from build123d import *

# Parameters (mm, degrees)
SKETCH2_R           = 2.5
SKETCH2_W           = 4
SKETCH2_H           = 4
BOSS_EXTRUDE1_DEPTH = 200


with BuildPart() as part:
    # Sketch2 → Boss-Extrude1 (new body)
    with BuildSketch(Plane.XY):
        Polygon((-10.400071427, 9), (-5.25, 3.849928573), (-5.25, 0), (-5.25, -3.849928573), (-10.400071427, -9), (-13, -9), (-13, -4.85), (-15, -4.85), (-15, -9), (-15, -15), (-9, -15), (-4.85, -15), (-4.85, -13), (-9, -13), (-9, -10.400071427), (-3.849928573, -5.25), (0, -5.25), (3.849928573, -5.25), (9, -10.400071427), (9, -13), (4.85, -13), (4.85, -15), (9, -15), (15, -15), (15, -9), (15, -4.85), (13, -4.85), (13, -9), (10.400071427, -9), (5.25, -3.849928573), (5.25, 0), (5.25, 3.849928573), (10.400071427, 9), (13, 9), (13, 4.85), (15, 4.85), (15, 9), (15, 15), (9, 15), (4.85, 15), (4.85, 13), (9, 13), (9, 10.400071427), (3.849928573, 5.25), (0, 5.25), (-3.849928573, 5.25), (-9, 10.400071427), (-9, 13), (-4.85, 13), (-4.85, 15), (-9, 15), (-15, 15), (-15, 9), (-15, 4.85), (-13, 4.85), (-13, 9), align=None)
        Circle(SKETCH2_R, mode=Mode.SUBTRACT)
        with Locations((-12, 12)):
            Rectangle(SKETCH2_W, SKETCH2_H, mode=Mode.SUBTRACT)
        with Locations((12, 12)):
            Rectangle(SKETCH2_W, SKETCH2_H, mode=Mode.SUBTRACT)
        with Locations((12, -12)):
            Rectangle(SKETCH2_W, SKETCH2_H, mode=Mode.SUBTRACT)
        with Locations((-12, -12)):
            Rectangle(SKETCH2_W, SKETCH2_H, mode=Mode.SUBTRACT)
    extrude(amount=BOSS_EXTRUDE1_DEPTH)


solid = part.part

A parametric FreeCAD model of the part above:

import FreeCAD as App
import Part
import Sketcher
Q = App.Units.Quantity

doc = App.newDocument("Part")
body = doc.addObject("PartDesign::Body", "Body")

# Sketch on XY plane
sketch1 = body.newObject("Sketcher::SketchObject", "Sketch")
sketch1.AttachmentSupport = (doc.getObject("XY_Plane"), [""])
sketch1.MapMode = "FlatFace"
sketch1.addGeometry(Part.LineSegment(App.Vector(-10.400071, 9, 0), App.Vector(-5.25, 3.849929, 0)), False)
sketch1.addGeometry(Part.LineSegment(App.Vector(-5.25, 3.849929, 0), App.Vector(-5.25, -3.849929, 0)), False)
sketch1.addGeometry(Part.LineSegment(App.Vector(-5.25, -3.849929, 0), App.Vector(-10.400071, -9, 0)), False)
sketch1.addGeometry(Part.LineSegment(App.Vector(-10.400071, -9, 0), App.Vector(-13, -9, 0)), False)
sketch1.addGeometry(Part.LineSegment(App.Vector(-13, -9, 0), App.Vector(-13, -4.85, 0)), False)
sketch1.addGeometry(Part.LineSegment(App.Vector(-13, -4.85, 0), App.Vector(-15, -4.85, 0)), False)
sketch1.addGeometry(Part.LineSegment(App.Vector(-15, -4.85, 0), App.Vector(-15, -15, 0)), False)
sketch1.addGeometry(Part.LineSegment(App.Vector(-15, -15, 0), App.Vector(-4.85, -15, 0)), False)
sketch1.addGeometry(Part.LineSegment(App.Vector(-4.85, -15, 0), App.Vector(-4.85, -13, 0)), False)
sketch1.addGeometry(Part.LineSegment(App.Vector(-4.85, -13, 0), App.Vector(-9, -13, 0)), False)
sketch1.addGeometry(Part.LineSegment(App.Vector(-9, -13, 0), App.Vector(-9, -10.400071, 0)), False)
sketch1.addGeometry(Part.LineSegment(App.Vector(-9, -10.400071, 0), App.Vector(-3.849929, -5.25, 0)), False)
sketch1.addGeometry(Part.LineSegment(App.Vector(-3.849929, -5.25, 0), App.Vector(3.849929, -5.25, 0)), False)
sketch1.addGeometry(Part.LineSegment(App.Vector(3.849929, -5.25, 0), App.Vector(9, -10.400071, 0)), False)
sketch1.addGeometry(Part.LineSegment(App.Vector(9, -10.400071, 0), App.Vector(9, -13, 0)), False)
sketch1.addGeometry(Part.LineSegment(App.Vector(9, -13, 0), App.Vector(4.85, -13, 0)), False)
sketch1.addGeometry(Part.LineSegment(App.Vector(4.85, -13, 0), App.Vector(4.85, -15, 0)), False)
sketch1.addGeometry(Part.LineSegment(App.Vector(4.85, -15, 0), App.Vector(15, -15, 0)), False)
sketch1.addGeometry(Part.LineSegment(App.Vector(15, -15, 0), App.Vector(15, -4.85, 0)), False)
sketch1.addGeometry(Part.LineSegment(App.Vector(15, -4.85, 0), App.Vector(13, -4.85, 0)), False)
sketch1.addGeometry(Part.LineSegment(App.Vector(13, -4.85, 0), App.Vector(13, -9, 0)), False)
sketch1.addGeometry(Part.LineSegment(App.Vector(13, -9, 0), App.Vector(10.400071, -9, 0)), False)
sketch1.addGeometry(Part.LineSegment(App.Vector(10.400071, -9, 0), App.Vector(5.25, -3.849929, 0)), False)
sketch1.addGeometry(Part.LineSegment(App.Vector(5.25, -3.849929, 0), App.Vector(5.25, 3.849929, 0)), False)
sketch1.addGeometry(Part.LineSegment(App.Vector(5.25, 3.849929, 0), App.Vector(10.400071, 9, 0)), False)
sketch1.addGeometry(Part.LineSegment(App.Vector(10.400071, 9, 0), App.Vector(13, 9, 0)), False)
sketch1.addGeometry(Part.LineSegment(App.Vector(13, 9, 0), App.Vector(13, 4.85, 0)), False)
sketch1.addGeometry(Part.LineSegment(App.Vector(13, 4.85, 0), App.Vector(15, 4.85, 0)), False)
sketch1.addGeometry(Part.LineSegment(App.Vector(15, 4.85, 0), App.Vector(15, 15, 0)), False)
sketch1.addGeometry(Part.LineSegment(App.Vector(15, 15, 0), App.Vector(4.85, 15, 0)), False)
sketch1.addGeometry(Part.LineSegment(App.Vector(4.85, 15, 0), App.Vector(4.85, 13, 0)), False)
sketch1.addGeometry(Part.LineSegment(App.Vector(4.85, 13, 0), App.Vector(9, 13, 0)), False)
sketch1.addGeometry(Part.LineSegment(App.Vector(9, 13, 0), App.Vector(9, 10.400071, 0)), False)
sketch1.addGeometry(Part.LineSegment(App.Vector(9, 10.400071, 0), App.Vector(3.849929, 5.25, 0)), False)
sketch1.addGeometry(Part.LineSegment(App.Vector(3.849929, 5.25, 0), App.Vector(-3.849929, 5.25, 0)), False)
sketch1.addGeometry(Part.LineSegment(App.Vector(-3.849929, 5.25, 0), App.Vector(-9, 10.400071, 0)), False)
sketch1.addGeometry(Part.LineSegment(App.Vector(-9, 10.400071, 0), App.Vector(-9, 13, 0)), False)
sketch1.addGeometry(Part.LineSegment(App.Vector(-9, 13, 0), App.Vector(-4.85, 13, 0)), False)
sketch1.addGeometry(Part.LineSegment(App.Vector(-4.85, 13, 0), App.Vector(-4.85, 15, 0)), False)
sketch1.addGeometry(Part.LineSegment(App.Vector(-4.85, 15, 0), App.Vector(-15, 15, 0)), False)
sketch1.addGeometry(Part.LineSegment(App.Vector(-15, 15, 0), App.Vector(-15, 4.85, 0)), False)
sketch1.addGeometry(Part.LineSegment(App.Vector(-15, 4.85, 0), App.Vector(-13, 4.85, 0)), False)
sketch1.addGeometry(Part.LineSegment(App.Vector(-13, 4.85, 0), App.Vector(-13, 9, 0)), False)
sketch1.addGeometry(Part.LineSegment(App.Vector(-13, 9, 0), App.Vector(-10.400071, 9, 0)), False)
sketch1.addGeometry(Part.LineSegment(App.Vector(-10, -14, 0), App.Vector(-14, -14, 0)), False)
sketch1.addGeometry(Part.LineSegment(App.Vector(-14, -14, 0), App.Vector(-14, -10, 0)), False)
sketch1.addGeometry(Part.LineSegment(App.Vector(-14, -10, 0), App.Vector(-10, -10, 0)), False)
sketch1.addGeometry(Part.LineSegment(App.Vector(-10, -10, 0), App.Vector(-10, -14, 0)), False)
sketch1.addGeometry(Part.LineSegment(App.Vector(14, -14, 0), App.Vector(10, -14, 0)), False)
sketch1.addGeometry(Part.LineSegment(App.Vector(10, -14, 0), App.Vector(10, -10, 0)), False)
sketch1.addGeometry(Part.LineSegment(App.Vector(10, -10, 0), App.Vector(14, -10, 0)), False)
sketch1.addGeometry(Part.LineSegment(App.Vector(14, -10, 0), App.Vector(14, -14, 0)), False)
sketch1.addGeometry(Part.LineSegment(App.Vector(-10, 10, 0), App.Vector(-14, 10, 0)), False)
sketch1.addGeometry(Part.LineSegment(App.Vector(-14, 10, 0), App.Vector(-14, 14, 0)), False)
sketch1.addGeometry(Part.LineSegment(App.Vector(-14, 14, 0), App.Vector(-10, 14, 0)), False)
sketch1.addGeometry(Part.LineSegment(App.Vector(-10, 14, 0), App.Vector(-10, 10, 0)), False)
sketch1.addGeometry(Part.Circle(App.Vector(0, 0, 0), App.Vector(0, 0, 1), 2.5), False)
sketch1.addGeometry(Part.LineSegment(App.Vector(14, 10, 0), App.Vector(10, 10, 0)), False)
sketch1.addGeometry(Part.LineSegment(App.Vector(10, 10, 0), App.Vector(10, 14, 0)), False)
sketch1.addGeometry(Part.LineSegment(App.Vector(10, 14, 0), App.Vector(14, 14, 0)), False)
sketch1.addGeometry(Part.LineSegment(App.Vector(14, 14, 0), App.Vector(14, 10, 0)), False)
sketch1.addConstraint(Sketcher.Constraint("Coincident", 0, 2, 1, 1))
sketch1.addConstraint(Sketcher.Constraint("Coincident", 1, 2, 2, 1))
sketch1.addConstraint(Sketcher.Constraint("Coincident", 2, 2, 3, 1))
sketch1.addConstraint(Sketcher.Constraint("Coincident", 3, 2, 4, 1))
sketch1.addConstraint(Sketcher.Constraint("Coincident", 4, 2, 5, 1))
sketch1.addConstraint(Sketcher.Constraint("Coincident", 5, 2, 6, 1))
sketch1.addConstraint(Sketcher.Constraint("Coincident", 6, 2, 7, 1))
sketch1.addConstraint(Sketcher.Constraint("Coincident", 7, 2, 8, 1))
sketch1.addConstraint(Sketcher.Constraint("Coincident", 8, 2, 9, 1))
sketch1.addConstraint(Sketcher.Constraint("Coincident", 9, 2, 10, 1))
sketch1.addConstraint(Sketcher.Constraint("Coincident", 10, 2, 11, 1))
sketch1.addConstraint(Sketcher.Constraint("Coincident", 11, 2, 12, 1))
sketch1.addConstraint(Sketcher.Constraint("Coincident", 12, 2, 13, 1))
sketch1.addConstraint(Sketcher.Constraint("Coincident", 13, 2, 14, 1))
sketch1.addConstraint(Sketcher.Constraint("Coincident", 14, 2, 15, 1))
sketch1.addConstraint(Sketcher.Constraint("Coincident", 15, 2, 16, 1))
sketch1.addConstraint(Sketcher.Constraint("Coincident", 16, 2, 17, 1))
sketch1.addConstraint(Sketcher.Constraint("Coincident", 17, 2, 18, 1))
sketch1.addConstraint(Sketcher.Constraint("Coincident", 18, 2, 19, 1))
sketch1.addConstraint(Sketcher.Constraint("Coincident", 19, 2, 20, 1))
sketch1.addConstraint(Sketcher.Constraint("Coincident", 20, 2, 21, 1))
sketch1.addConstraint(Sketcher.Constraint("Coincident", 21, 2, 22, 1))
sketch1.addConstraint(Sketcher.Constraint("Coincident", 22, 2, 23, 1))
sketch1.addConstraint(Sketcher.Constraint("Coincident", 23, 2, 24, 1))
sketch1.addConstraint(Sketcher.Constraint("Coincident", 24, 2, 25, 1))
sketch1.addConstraint(Sketcher.Constraint("Coincident", 25, 2, 26, 1))
sketch1.addConstraint(Sketcher.Constraint("Coincident", 26, 2, 27, 1))
sketch1.addConstraint(Sketcher.Constraint("Coincident", 27, 2, 28, 1))
sketch1.addConstraint(Sketcher.Constraint("Coincident", 28, 2, 29, 1))
sketch1.addConstraint(Sketcher.Constraint("Coincident", 29, 2, 30, 1))
sketch1.addConstraint(Sketcher.Constraint("Coincident", 30, 2, 31, 1))
sketch1.addConstraint(Sketcher.Constraint("Coincident", 31, 2, 32, 1))
sketch1.addConstraint(Sketcher.Constraint("Coincident", 32, 2, 33, 1))
sketch1.addConstraint(Sketcher.Constraint("Coincident", 33, 2, 34, 1))
sketch1.addConstraint(Sketcher.Constraint("Coincident", 34, 2, 35, 1))
sketch1.addConstraint(Sketcher.Constraint("Coincident", 35, 2, 36, 1))
sketch1.addConstraint(Sketcher.Constraint("Coincident", 36, 2, 37, 1))
sketch1.addConstraint(Sketcher.Constraint("Coincident", 37, 2, 38, 1))
sketch1.addConstraint(Sketcher.Constraint("Coincident", 38, 2, 39, 1))
sketch1.addConstraint(Sketcher.Constraint("Coincident", 39, 2, 40, 1))
sketch1.addConstraint(Sketcher.Constraint("Coincident", 40, 2, 41, 1))
sketch1.addConstraint(Sketcher.Constraint("Coincident", 41, 2, 42, 1))
sketch1.addConstraint(Sketcher.Constraint("Coincident", 42, 2, 43, 1))
sketch1.addConstraint(Sketcher.Constraint("Coincident", 43, 2, 0, 1))
sketch1.addConstraint(Sketcher.Constraint("Coincident", 44, 2, 45, 1))
sketch1.addConstraint(Sketcher.Constraint("Coincident", 45, 2, 46, 1))
sketch1.addConstraint(Sketcher.Constraint("Coincident", 46, 2, 47, 1))
sketch1.addConstraint(Sketcher.Constraint("Coincident", 47, 2, 44, 1))
sketch1.addConstraint(Sketcher.Constraint("Coincident", 48, 2, 49, 1))
sketch1.addConstraint(Sketcher.Constraint("Coincident", 49, 2, 50, 1))
sketch1.addConstraint(Sketcher.Constraint("Coincident", 50, 2, 51, 1))
sketch1.addConstraint(Sketcher.Constraint("Coincident", 51, 2, 48, 1))
sketch1.addConstraint(Sketcher.Constraint("Coincident", 52, 2, 53, 1))
sketch1.addConstraint(Sketcher.Constraint("Coincident", 53, 2, 54, 1))
sketch1.addConstraint(Sketcher.Constraint("Coincident", 54, 2, 55, 1))
sketch1.addConstraint(Sketcher.Constraint("Coincident", 55, 2, 52, 1))
sketch1.addConstraint(Sketcher.Constraint("Coincident", 57, 2, 58, 1))
sketch1.addConstraint(Sketcher.Constraint("Coincident", 58, 2, 59, 1))
sketch1.addConstraint(Sketcher.Constraint("Coincident", 59, 2, 60, 1))
sketch1.addConstraint(Sketcher.Constraint("Coincident", 60, 2, 57, 1))
sketch1.addConstraint(Sketcher.Constraint("Vertical", 1))
sketch1.addConstraint(Sketcher.Constraint("Horizontal", 3))
sketch1.addConstraint(Sketcher.Constraint("Vertical", 4))
sketch1.addConstraint(Sketcher.Constraint("Horizontal", 5))
sketch1.addConstraint(Sketcher.Constraint("Vertical", 6))
sketch1.addConstraint(Sketcher.Constraint("Horizontal", 7))
sketch1.addConstraint(Sketcher.Constraint("Vertical", 8))
sketch1.addConstraint(Sketcher.Constraint("Horizontal", 9))
sketch1.addConstraint(Sketcher.Constraint("Vertical", 10))
sketch1.addConstraint(Sketcher.Constraint("Horizontal", 12))
sketch1.addConstraint(Sketcher.Constraint("Vertical", 14))
sketch1.addConstraint(Sketcher.Constraint("Horizontal", 15))
sketch1.addConstraint(Sketcher.Constraint("Vertical", 16))
sketch1.addConstraint(Sketcher.Constraint("Horizontal", 17))
sketch1.addConstraint(Sketcher.Constraint("Vertical", 18))
sketch1.addConstraint(Sketcher.Constraint("Horizontal", 19))
sketch1.addConstraint(Sketcher.Constraint("Vertical", 20))
sketch1.addConstraint(Sketcher.Constraint("Horizontal", 21))
sketch1.addConstraint(Sketcher.Constraint("Vertical", 23))
sketch1.addConstraint(Sketcher.Constraint("Horizontal", 25))
sketch1.addConstraint(Sketcher.Constraint("Vertical", 26))
sketch1.addConstraint(Sketcher.Constraint("Horizontal", 27))
sketch1.addConstraint(Sketcher.Constraint("Vertical", 28))
sketch1.addConstraint(Sketcher.Constraint("Horizontal", 29))
sketch1.addConstraint(Sketcher.Constraint("Vertical", 30))
sketch1.addConstraint(Sketcher.Constraint("Horizontal", 31))
sketch1.addConstraint(Sketcher.Constraint("Vertical", 32))
sketch1.addConstraint(Sketcher.Constraint("Horizontal", 34))
sketch1.addConstraint(Sketcher.Constraint("Vertical", 36))
sketch1.addConstraint(Sketcher.Constraint("Horizontal", 37))
sketch1.addConstraint(Sketcher.Constraint("Vertical", 38))
sketch1.addConstraint(Sketcher.Constraint("Horizontal", 39))
sketch1.addConstraint(Sketcher.Constraint("Vertical", 40))
sketch1.addConstraint(Sketcher.Constraint("Horizontal", 41))
sketch1.addConstraint(Sketcher.Constraint("Vertical", 42))
sketch1.addConstraint(Sketcher.Constraint("Horizontal", 43))
sketch1.addConstraint(Sketcher.Constraint("Horizontal", 44))
sketch1.addConstraint(Sketcher.Constraint("Vertical", 45))
sketch1.addConstraint(Sketcher.Constraint("Horizontal", 46))
sketch1.addConstraint(Sketcher.Constraint("Vertical", 47))
sketch1.addConstraint(Sketcher.Constraint("Horizontal", 48))
sketch1.addConstraint(Sketcher.Constraint("Vertical", 49))
sketch1.addConstraint(Sketcher.Constraint("Horizontal", 50))
sketch1.addConstraint(Sketcher.Constraint("Vertical", 51))
sketch1.addConstraint(Sketcher.Constraint("Horizontal", 52))
sketch1.addConstraint(Sketcher.Constraint("Vertical", 53))
sketch1.addConstraint(Sketcher.Constraint("Horizontal", 54))
sketch1.addConstraint(Sketcher.Constraint("Vertical", 55))
sketch1.addConstraint(Sketcher.Constraint("Horizontal", 57))
sketch1.addConstraint(Sketcher.Constraint("Vertical", 58))
sketch1.addConstraint(Sketcher.Constraint("Horizontal", 59))
sketch1.addConstraint(Sketcher.Constraint("Vertical", 60))
sketch1.addConstraint(Sketcher.Constraint("Coincident", 56, 3, -1, 1))
sketch1.addConstraint(Sketcher.Constraint("Symmetric", 0, 2, 22, 2, -1, 1))
sketch1.addConstraint(Sketcher.Constraint("Symmetric", 2, 2, 24, 2, -1, 1))
sketch1.addConstraint(Sketcher.Constraint("Symmetric", 4, 2, 26, 2, -1, 1))
sketch1.addConstraint(Sketcher.Constraint("Symmetric", 6, 2, 28, 2, -1, 1))
sketch1.addConstraint(Sketcher.Constraint("Symmetric", 8, 2, 30, 2, -1, 1))
sketch1.addConstraint(Sketcher.Constraint("Symmetric", 10, 2, 32, 2, -1, 1))
sketch1.addConstraint(Sketcher.Constraint("Symmetric", 11, 2, 33, 2, -1, 1))
sketch1.addConstraint(Sketcher.Constraint("Symmetric", 13, 2, 35, 2, -1, 1))
sketch1.addConstraint(Sketcher.Constraint("Symmetric", 15, 2, 37, 2, -1, 1))
sketch1.addConstraint(Sketcher.Constraint("Symmetric", 17, 2, 39, 2, -1, 1))
sketch1.addConstraint(Sketcher.Constraint("Symmetric", 19, 2, 41, 2, -1, 1))
sketch1.addConstraint(Sketcher.Constraint("Symmetric", 21, 2, 43, 2, -1, 1))
sketch1.addConstraint(Sketcher.Constraint("Symmetric", 50, 2, 52, 2, -1, 1))
sketch1.addConstraint(Sketcher.Constraint("Symmetric", 48, 2, 54, 2, -1, 1))
sketch1.addConstraint(Sketcher.Constraint("Symmetric", 46, 2, 57, 2, -1, 1))
sketch1.addConstraint(Sketcher.Constraint("Symmetric", 44, 2, 59, 2, -1, 1))
sketch1.addConstraint(Sketcher.Constraint("Symmetric", 10, 2, 13, 2, -2))
sketch1.addConstraint(Sketcher.Constraint("Symmetric", 8, 2, 15, 2, -2))
sketch1.addConstraint(Sketcher.Constraint("Symmetric", 6, 2, 17, 2, -2))
sketch1.addConstraint(Sketcher.Constraint("Symmetric", 4, 2, 19, 2, -2))
sketch1.addConstraint(Sketcher.Constraint("Symmetric", 2, 2, 21, 2, -2))
sketch1.addConstraint(Sketcher.Constraint("Symmetric", 47, 2, 48, 2, -2))
sketch1.addConstraint(Sketcher.Constraint("Symmetric", 45, 2, 50, 2, -2))
sketch1.addConstraint(Sketcher.Constraint("Perpendicular", 0, 2))
sketch1.addConstraint(Sketcher.Constraint("Parallel", 2, 11))
sketch1.addConstraint(Sketcher.Constraint("Perpendicular", 11, 13))
sketch1.addConstraint(Sketcher.Constraint("Perpendicular", 22, 24))
sketch1.addConstraint(Sketcher.Constraint("Perpendicular", 33, 35))
sketch1.addConstraint(Sketcher.Constraint("Horizontal", 1, 2, 22, 2))
sketch1.addConstraint(Sketcher.Constraint("Equal", 34, 1))
sketch1.addConstraint(Sketcher.Constraint("Equal", 37, 4))
sketch1.addConstraint(Sketcher.Constraint("Equal", 39, 6))
sketch1.addConstraint(Sketcher.Constraint("Equal", 41, 8))
sketch1.addConstraint(Sketcher.Constraint("Equal", 43, 10))
sketch1.addConstraint(Sketcher.Constraint("Equal", 59, 45))
sketch1.addConstraint(Sketcher.Constraint("Equal", 2, 11))
sketch1.addConstraint(Sketcher.Constraint("Diameter", 56, Q("5 mm")))
sketch1.addConstraint(Sketcher.Constraint("DistanceX", 5, 2, 5, 1, Q("2 mm")))
sketch1.addConstraint(Sketcher.Constraint("DistanceX", 44, 2, 44, 1, Q("4 mm")))
sketch1.addConstraint(Sketcher.Constraint("DistanceY", 2, 2, -1, 1, Q("9 mm")))
sketch1.addConstraint(Sketcher.Constraint("DistanceX", 3, 2, -1, 1, Q("13 mm")))
sketch1.addConstraint(Sketcher.Constraint("DistanceX", 44, 2, -1, 1, Q("14 mm")))
sketch1.addConstraint(Sketcher.Constraint("DistanceY", 44, 2, -1, 1, Q("14 mm")))
sketch1.addConstraint(Sketcher.Constraint("DistanceX", 7, 1, 7, 2, Q("10.15 mm")))
sketch1.addConstraint(Sketcher.Constraint("DistanceX", 0, 2, -1, 1, Q("5.25 mm")))
sketch1.addConstraint(Sketcher.Constraint("Distance", 0, Q("7.283301 mm")))
pad1 = body.newObject("PartDesign::Pad", "Pad")
pad1.Profile = sketch1
pad1.Length = 200

doc.recompute()
